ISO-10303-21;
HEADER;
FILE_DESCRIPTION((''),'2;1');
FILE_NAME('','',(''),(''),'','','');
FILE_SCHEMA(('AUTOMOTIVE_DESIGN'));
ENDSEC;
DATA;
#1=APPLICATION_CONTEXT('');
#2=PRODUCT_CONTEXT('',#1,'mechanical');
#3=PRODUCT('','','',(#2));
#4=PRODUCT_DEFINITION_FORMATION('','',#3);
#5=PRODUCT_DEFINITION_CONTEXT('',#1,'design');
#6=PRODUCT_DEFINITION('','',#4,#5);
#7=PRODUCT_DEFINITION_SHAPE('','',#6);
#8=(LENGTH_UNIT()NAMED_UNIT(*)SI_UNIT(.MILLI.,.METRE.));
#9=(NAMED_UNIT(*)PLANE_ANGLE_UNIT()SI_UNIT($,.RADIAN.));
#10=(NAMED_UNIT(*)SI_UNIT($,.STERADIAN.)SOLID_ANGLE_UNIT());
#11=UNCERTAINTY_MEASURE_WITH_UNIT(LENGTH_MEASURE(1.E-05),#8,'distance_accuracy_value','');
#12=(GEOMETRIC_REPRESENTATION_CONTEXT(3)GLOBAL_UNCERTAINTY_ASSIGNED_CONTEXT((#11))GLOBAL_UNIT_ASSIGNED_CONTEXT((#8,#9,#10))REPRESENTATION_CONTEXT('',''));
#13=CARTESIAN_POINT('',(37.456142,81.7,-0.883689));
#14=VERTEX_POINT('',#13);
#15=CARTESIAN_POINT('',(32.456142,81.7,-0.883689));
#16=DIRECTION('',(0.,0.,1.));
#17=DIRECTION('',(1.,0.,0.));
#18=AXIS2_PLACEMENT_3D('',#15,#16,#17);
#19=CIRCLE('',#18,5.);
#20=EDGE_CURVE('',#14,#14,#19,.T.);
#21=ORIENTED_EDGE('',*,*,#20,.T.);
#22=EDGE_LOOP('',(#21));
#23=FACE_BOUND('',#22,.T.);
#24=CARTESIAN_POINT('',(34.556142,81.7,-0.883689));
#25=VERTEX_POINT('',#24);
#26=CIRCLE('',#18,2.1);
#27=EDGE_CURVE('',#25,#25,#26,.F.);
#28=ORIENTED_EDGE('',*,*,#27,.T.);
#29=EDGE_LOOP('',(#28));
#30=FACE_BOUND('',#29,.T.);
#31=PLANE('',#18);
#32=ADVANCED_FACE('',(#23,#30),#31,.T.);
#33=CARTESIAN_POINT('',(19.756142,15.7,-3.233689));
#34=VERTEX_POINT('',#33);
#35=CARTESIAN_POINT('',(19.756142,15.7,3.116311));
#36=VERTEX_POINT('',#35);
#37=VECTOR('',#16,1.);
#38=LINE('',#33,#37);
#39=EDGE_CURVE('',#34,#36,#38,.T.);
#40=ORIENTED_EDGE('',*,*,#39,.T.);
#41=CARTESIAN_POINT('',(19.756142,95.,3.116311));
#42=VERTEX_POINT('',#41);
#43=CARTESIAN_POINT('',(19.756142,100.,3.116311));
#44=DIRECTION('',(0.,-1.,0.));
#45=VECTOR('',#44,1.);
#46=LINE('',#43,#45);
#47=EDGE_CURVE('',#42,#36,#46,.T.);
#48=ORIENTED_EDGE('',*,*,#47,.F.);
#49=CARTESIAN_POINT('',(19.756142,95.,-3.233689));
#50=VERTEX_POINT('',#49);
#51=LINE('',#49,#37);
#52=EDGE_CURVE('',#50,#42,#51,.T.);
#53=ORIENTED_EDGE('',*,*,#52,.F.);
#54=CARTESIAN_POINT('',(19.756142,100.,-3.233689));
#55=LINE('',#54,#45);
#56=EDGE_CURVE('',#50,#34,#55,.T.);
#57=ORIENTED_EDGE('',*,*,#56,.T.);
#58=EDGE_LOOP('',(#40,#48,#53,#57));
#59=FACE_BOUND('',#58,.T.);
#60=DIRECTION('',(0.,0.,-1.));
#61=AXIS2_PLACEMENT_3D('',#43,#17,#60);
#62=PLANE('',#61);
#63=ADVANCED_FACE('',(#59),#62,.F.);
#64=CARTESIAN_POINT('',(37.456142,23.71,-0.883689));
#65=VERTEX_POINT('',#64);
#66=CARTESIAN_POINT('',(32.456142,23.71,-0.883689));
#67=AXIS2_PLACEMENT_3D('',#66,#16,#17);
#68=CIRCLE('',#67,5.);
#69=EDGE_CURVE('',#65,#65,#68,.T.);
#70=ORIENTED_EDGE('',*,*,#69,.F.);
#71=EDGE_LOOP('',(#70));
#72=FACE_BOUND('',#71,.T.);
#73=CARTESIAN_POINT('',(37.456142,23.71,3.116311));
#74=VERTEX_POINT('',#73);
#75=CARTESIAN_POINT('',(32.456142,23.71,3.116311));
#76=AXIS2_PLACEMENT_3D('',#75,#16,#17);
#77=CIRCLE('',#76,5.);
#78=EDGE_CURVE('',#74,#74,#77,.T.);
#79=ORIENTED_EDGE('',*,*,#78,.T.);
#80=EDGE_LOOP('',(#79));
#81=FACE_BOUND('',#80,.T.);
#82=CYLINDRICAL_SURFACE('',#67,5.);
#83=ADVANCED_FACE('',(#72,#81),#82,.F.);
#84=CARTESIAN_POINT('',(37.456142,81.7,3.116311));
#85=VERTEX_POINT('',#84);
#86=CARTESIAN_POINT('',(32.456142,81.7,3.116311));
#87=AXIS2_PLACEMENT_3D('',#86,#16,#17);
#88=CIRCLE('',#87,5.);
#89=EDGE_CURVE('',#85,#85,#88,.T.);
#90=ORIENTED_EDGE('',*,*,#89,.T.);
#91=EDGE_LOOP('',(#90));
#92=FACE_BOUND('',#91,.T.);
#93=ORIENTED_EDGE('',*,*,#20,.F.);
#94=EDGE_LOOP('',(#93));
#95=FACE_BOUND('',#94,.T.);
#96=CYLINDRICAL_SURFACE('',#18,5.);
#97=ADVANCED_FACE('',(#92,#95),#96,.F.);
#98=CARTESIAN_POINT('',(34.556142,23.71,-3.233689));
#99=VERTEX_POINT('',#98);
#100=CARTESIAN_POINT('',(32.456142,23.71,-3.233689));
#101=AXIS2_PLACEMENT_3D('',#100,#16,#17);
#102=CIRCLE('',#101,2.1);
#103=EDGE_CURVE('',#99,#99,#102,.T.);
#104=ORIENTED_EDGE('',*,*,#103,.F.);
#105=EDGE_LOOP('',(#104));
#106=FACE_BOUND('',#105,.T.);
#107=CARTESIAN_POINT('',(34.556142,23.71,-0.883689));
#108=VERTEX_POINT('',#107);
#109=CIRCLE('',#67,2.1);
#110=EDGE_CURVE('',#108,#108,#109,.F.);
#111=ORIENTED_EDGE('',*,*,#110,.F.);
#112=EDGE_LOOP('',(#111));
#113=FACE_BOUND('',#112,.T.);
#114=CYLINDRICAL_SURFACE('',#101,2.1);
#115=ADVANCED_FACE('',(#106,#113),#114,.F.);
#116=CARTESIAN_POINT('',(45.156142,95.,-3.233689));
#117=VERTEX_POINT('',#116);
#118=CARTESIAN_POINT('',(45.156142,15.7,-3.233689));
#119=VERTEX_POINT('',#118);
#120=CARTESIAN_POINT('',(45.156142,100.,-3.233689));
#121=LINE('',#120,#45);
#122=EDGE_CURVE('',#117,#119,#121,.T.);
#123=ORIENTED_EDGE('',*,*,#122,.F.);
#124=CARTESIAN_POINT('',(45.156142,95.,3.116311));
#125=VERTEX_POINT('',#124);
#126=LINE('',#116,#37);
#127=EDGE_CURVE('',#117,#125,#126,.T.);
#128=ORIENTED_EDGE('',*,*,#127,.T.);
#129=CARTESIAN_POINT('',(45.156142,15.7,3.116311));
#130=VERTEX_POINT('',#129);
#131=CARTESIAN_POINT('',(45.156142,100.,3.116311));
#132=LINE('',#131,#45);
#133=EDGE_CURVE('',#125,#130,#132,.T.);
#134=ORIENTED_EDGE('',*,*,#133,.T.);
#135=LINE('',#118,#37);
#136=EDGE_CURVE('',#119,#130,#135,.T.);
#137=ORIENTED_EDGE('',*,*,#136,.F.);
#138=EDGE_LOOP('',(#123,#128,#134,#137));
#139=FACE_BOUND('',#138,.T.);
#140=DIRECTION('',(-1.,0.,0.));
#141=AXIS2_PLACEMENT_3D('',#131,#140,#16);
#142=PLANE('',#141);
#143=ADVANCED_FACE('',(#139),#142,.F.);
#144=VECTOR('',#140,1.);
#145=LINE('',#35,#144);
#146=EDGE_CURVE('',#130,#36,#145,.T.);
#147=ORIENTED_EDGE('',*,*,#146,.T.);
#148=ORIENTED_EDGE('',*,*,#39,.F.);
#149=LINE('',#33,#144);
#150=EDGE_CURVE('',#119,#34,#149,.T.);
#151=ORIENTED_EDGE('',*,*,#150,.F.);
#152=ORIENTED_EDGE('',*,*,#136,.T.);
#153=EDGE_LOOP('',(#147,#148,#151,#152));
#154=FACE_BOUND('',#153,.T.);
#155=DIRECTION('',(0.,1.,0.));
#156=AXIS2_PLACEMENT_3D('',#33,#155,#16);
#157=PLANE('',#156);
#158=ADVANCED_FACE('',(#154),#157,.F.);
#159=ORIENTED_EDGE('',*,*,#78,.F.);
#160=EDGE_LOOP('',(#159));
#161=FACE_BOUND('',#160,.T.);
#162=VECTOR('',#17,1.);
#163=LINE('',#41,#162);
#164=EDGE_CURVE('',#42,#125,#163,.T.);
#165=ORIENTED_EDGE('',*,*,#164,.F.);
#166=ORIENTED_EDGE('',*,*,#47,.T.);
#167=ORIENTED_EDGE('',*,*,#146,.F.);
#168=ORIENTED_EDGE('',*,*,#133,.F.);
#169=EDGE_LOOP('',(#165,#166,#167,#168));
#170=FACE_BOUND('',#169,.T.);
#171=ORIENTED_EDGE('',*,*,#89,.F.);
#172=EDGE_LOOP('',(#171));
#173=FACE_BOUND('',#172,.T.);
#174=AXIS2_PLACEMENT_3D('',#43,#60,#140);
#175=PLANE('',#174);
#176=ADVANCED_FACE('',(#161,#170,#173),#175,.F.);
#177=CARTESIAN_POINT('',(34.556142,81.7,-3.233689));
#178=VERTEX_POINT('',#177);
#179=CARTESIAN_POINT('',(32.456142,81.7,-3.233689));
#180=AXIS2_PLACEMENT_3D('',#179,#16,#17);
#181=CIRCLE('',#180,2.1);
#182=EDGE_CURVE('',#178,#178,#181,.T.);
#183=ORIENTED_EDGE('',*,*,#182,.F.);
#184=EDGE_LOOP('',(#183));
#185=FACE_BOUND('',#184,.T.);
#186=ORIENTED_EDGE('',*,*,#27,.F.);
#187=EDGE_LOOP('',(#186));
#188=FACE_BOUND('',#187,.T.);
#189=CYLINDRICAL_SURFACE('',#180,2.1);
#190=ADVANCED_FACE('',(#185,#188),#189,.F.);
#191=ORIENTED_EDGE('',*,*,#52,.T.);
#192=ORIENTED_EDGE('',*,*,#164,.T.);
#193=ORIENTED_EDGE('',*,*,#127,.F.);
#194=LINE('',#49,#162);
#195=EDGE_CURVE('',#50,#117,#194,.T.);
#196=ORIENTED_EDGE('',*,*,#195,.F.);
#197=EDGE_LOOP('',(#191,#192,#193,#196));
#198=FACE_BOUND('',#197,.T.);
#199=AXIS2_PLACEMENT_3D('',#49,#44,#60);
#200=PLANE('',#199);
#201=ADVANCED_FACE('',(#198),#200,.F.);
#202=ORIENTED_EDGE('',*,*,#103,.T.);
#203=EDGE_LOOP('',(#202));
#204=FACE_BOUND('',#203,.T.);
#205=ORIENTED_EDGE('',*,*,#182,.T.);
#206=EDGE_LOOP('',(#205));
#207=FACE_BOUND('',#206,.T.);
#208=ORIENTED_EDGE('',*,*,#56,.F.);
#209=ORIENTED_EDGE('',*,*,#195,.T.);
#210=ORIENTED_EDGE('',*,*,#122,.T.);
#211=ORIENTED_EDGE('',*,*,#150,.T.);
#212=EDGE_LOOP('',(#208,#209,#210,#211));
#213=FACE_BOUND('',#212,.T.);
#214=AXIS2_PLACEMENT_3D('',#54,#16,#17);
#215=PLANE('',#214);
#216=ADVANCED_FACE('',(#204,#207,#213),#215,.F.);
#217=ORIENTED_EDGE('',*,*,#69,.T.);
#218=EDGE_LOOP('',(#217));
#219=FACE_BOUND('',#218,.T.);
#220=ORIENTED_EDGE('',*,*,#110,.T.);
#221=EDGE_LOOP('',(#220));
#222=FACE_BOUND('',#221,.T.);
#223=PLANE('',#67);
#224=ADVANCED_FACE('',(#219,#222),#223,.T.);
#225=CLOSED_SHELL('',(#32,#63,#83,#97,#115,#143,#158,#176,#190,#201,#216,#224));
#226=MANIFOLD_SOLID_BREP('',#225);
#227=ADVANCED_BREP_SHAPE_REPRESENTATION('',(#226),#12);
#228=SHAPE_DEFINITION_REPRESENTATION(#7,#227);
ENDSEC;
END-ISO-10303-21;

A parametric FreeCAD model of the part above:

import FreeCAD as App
import Part
import Sketcher
from FreeCAD import Vector


def add_polygon(sketch, points):
    """Adds a closed chain of lines whose ends are joined by coincident constraints."""
    first, n = sketch.GeometryCount, len(points)
    for a, b in zip(points, points[1:] + points[:1]):
        sketch.addGeometry(Part.LineSegment(App.Vector(*a, 0), App.Vector(*b, 0)), False)
    for i in range(n):
        sketch.addConstraint(Sketcher.Constraint("Coincident", first + i, 2, first + (i + 1) % n, 1))

doc = App.newDocument("Part")
params = doc.addObject("Spreadsheet::Sheet", "Params")
for row, (alias, value) in enumerate([
    ("sketch1_width", "25.4 mm"),
    ("sketch1_height", "6.35 mm"),
    ("pad1_length", "100 mm"),
    ("sketch2_diameter", "4.2 mm"),
    ("sketch3_diameter", "10 mm"),
    ("pocket2_length", "4 mm"),
    ("sketch4_diameter", "10 mm"),
    ("pocket3_length", "4 mm"),
    ("sketch5_height", "5 mm"),
    ("sketch5_height2", "12 mm"),
    ("sketch5_width", "25.4 mm"),
    ("sketch6_width", "25.4 mm"),
    ("sketch6_height", "3.7 mm"),
], start=1):
    params.set(f"A{row}", alias)
    params.set(f"B{row}", "=" + value)
    params.setAlias(f"B{row}", alias)

body = doc.addObject("PartDesign::Body", "Body")

# Sketch on XZ plane
sketch1 = body.newObject("Sketcher::SketchObject", "Sketch")
sketch1.AttachmentSupport = (doc.getObject("XZ_Plane"), [""])
sketch1.MapMode = "FlatFace"
add_polygon(sketch1, [(20, -3), (20, 3), (45, 3), (45, -3)])  # lines 0-3
sketch1.addConstraint([
    Sketcher.Constraint("Vertical", 0),
    Sketcher.Constraint("Horizontal", 1),
    Sketcher.Constraint("Vertical", 2),
    Sketcher.Constraint("Horizontal", 3),
    Sketcher.Constraint("DistanceX", 1, 1, 1, 2, 25.4),
    Sketcher.Constraint("DistanceY", 0, 1, 0, 2, 6.35),
    Sketcher.Constraint("DistanceX", -1, 1, 0, 2, 19.756142),
    Sketcher.Constraint("DistanceY", -1, 1, 0, 2, 3.116311),
])
sketch1.setExpression("Constraints[8]", "Params.sketch1_width")
sketch1.setExpression("Constraints[9]", "Params.sketch1_height")
pad1 = body.newObject("PartDesign::Pad", "Pad")
pad1.Profile = sketch1
pad1.setExpression("Length", "Params.pad1_length")
pad1.Reversed = True

# Sketch on XY plane
sketch2 = body.newObject("Sketcher::SketchObject", "Sketch001")
sketch2.AttachmentSupport = (doc.getObject("XY_Plane"), [""])
sketch2.MapMode = "FlatFace"
sketch2.AttachmentOffset = App.Placement(Vector(0, 0, 3.116311), App.Rotation())
sketch2.addGeometry([
    Part.Circle(Vector(32.5, 81.7, 0), Vector(0, 0, 1), 2.1),
    Part.Circle(Vector(32.5, 23.7, 0), Vector(0, 0, 1), 2.1),
], False)
sketch2.addConstraint([
    Sketcher.Constraint("Equal", 0, 1),
    Sketcher.Constraint("Vertical", 0, 3, 1, 3),
    Sketcher.Constraint("Diameter", 0, 4.2),
    Sketcher.Constraint("DistanceY", -1, 1, 0, 3, 81.7),
    Sketcher.Constraint("DistanceY", -1, 1, 1, 3, 23.71),
    Sketcher.Constraint("DistanceX", -1, 1, 0, 3, 32.456142),
])
sketch2.setExpression("Constraints[2]", "Params.sketch2_diameter")
pocket1 = body.newObject("PartDesign::Pocket", "Pocket")
pocket1.Profile = sketch2
pocket1.Type = "ThroughAll"

# Sketch on XY plane
sketch3 = body.newObject("Sketcher::SketchObject", "Sketch002")
sketch3.AttachmentSupport = (doc.getObject("XY_Plane"), [""])
sketch3.MapMode = "FlatFace"
sketch3.AttachmentOffset = App.Placement(Vector(0, 0, 3.116311), App.Rotation())
sketch3.addGeometry(Part.Circle(Vector(32, 82, 0), Vector(0, 0, 1), 5), False)
sketch3.addConstraint([
    Sketcher.Constraint("Diameter", 0, 10.0),
    Sketcher.Constraint("DistanceY", -1, 1, 0, 3, 81.7),
    Sketcher.Constraint("DistanceX", -1, 1, 0, 3, 32.456142),
])
sketch3.setExpression("Constraints[0]", "Params.sketch3_diameter")
pocket2 = body.newObject("PartDesign::Pocket", "Pocket001")
pocket2.Profile = sketch3
pocket2.setExpression("Length", "Params.pocket2_length")

# Sketch on XY plane
sketch4 = body.newObject("Sketcher::SketchObject", "Sketch003")
sketch4.AttachmentSupport = (doc.getObject("XY_Plane"), [""])
sketch4.MapMode = "FlatFace"
sketch4.AttachmentOffset = App.Placement(Vector(0, 0, 3.116311), App.Rotation())
sketch4.addGeometry(Part.Circle(Vector(32, 24, 0), Vector(0, 0, 1), 5), False)
sketch4.addConstraint([
    Sketcher.Constraint("Diameter", 0, 10.0),
    Sketcher.Constraint("DistanceY", -1, 1, 0, 3, 23.71),
    Sketcher.Constraint("DistanceX", -1, 1, 0, 3, 32.456142),
])
sketch4.setExpression("Constraints[0]", "Params.sketch4_diameter")
pocket3 = body.newObject("PartDesign::Pocket", "Pocket002")
pocket3.Profile = sketch4
pocket3.setExpression("Length", "Params.pocket3_length")

# Sketch on XY plane
sketch5 = body.newObject("Sketcher::SketchObject", "Sketch004")
sketch5.AttachmentSupport = (doc.getObject("XY_Plane"), [""])
sketch5.MapMode = "FlatFace"
sketch5.AttachmentOffset = App.Placement(Vector(0, 0, 3.116311), App.Rotation())
add_polygon(sketch5, [(20, 100), (20, 95), (45, 95), (45, 100)])  # lines 0-3
add_polygon(sketch5, [(20, 12), (20, 0), (45, 0), (45, 12)])  # lines 4-7
sketch5.addConstraint([
    Sketcher.Constraint("Vertical", 0),
    Sketcher.Constraint("Horizontal", 1),
    Sketcher.Constraint("Vertical", 2),
    Sketcher.Constraint("Horizontal", 3),
    Sketcher.Constraint("Vertical", 4),
    Sketcher.Constraint("Horizontal", 5),
    Sketcher.Constraint("Vertical", 6),
    Sketcher.Constraint("Horizontal", 7),
    Sketcher.Constraint("PointOnObject", 4, 2, -1),
    Sketcher.Constraint("Vertical", 3, 2, 4, 2),
    Sketcher.Constraint("Vertical", 2, 2, 5, 2),
    Sketcher.Constraint("DistanceY", 0, 2, 0, 1, 5.0),
    Sketcher.Constraint("DistanceY", 4, 2, 4, 1, 12.0),
    Sketcher.Constraint("DistanceX", 1, 1, 1, 2, 25.4),
    Sketcher.Constraint("DistanceY", -1, 1, 0, 2, 95.0),
    Sketcher.Constraint("DistanceX", -1, 1, 0, 2, 19.756142),
])
sketch5.setExpression("Constraints[19]", "Params.sketch5_height")
sketch5.setExpression("Constraints[20]", "Params.sketch5_height2")
sketch5.setExpression("Constraints[21]", "Params.sketch5_width")
pocket4 = body.newObject("PartDesign::Pocket", "Pocket003")
pocket4.Profile = sketch5
pocket4.Type = "ThroughAll"

# Sketch on XY plane
sketch6 = body.newObject("Sketcher::SketchObject", "Sketch005")
sketch6.AttachmentSupport = (doc.getObject("XY_Plane"), [""])
sketch6.MapMode = "FlatFace"
sketch6.AttachmentOffset = App.Placement(Vector(0, 0, 3.116311), App.Rotation())
add_polygon(sketch6, [(19.8, 15.7), (19.8, 12), (45.2, 12), (45.2, 15.7)])  # lines 0-3
sketch6.addConstraint([
    Sketcher.Constraint("Vertical", 0),
    Sketcher.Constraint("Horizontal", 1),
    Sketcher.Constraint("Vertical", 2),
    Sketcher.Constraint("Horizontal", 3),
    Sketcher.Constraint("DistanceX", 1, 1, 1, 2, 25.4),
    Sketcher.Constraint("DistanceY", 0, 2, 0, 1, 3.7),
    Sketcher.Constraint("DistanceY", -1, 1, 0, 2, 12.0),
    Sketcher.Constraint("DistanceX", -1, 1, 0, 2, 19.756142),
])
sketch6.setExpression("Constraints[8]", "Params.sketch6_width")
sketch6.setExpression("Constraints[9]", "Params.sketch6_height")
pocket5 = body.newObject("PartDesign::Pocket", "Pocket004")
pocket5.Profile = sketch6
pocket5.Type = "ThroughAll"

doc.recompute()
